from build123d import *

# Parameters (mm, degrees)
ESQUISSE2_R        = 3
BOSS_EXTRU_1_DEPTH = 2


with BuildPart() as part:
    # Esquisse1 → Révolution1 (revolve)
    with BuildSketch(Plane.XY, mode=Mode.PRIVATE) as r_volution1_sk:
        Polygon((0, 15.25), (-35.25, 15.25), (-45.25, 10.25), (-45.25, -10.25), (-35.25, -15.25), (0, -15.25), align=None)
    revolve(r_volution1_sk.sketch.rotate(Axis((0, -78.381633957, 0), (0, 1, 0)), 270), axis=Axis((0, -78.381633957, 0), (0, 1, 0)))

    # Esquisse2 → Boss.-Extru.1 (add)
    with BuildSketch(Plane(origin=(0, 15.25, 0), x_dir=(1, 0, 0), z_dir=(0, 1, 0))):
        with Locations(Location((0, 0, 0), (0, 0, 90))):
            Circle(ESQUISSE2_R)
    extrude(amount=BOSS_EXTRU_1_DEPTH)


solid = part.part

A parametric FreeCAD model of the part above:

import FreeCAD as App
import Part
import Sketcher

V = App.Vector


def add_polygon(sketch, points):
    """Adds a closed chain of lines whose ends are joined by coincident constraints."""
    first, n = sketch.GeometryCount, len(points)
    for a, b in zip(points, points[1:] + points[:1]):
        sketch.addGeometry(Part.LineSegment(App.Vector(*a, 0), App.Vector(*b, 0)), False)
    for i in range(n):
        sketch.addConstraint(Sketcher.Constraint("Coincident", first + i, 2, first + (i + 1) % n, 1))

doc = App.newDocument("Part")
body = doc.addObject("PartDesign::Body", "Body")

# Sketch on XY plane
sketch1 = doc.addObject("Sketcher::SketchObject", "Sketch")
body.addObject(sketch1)
sketch1.AttachmentSupport = (doc.XY_Plane, [""])
sketch1.MapMode = "FlatFace"
add_polygon(sketch1, [(0, 15), (-35, 15), (-45, 10), (-45, -10), (-35, -15), (0, -15)])  # lines 0-5
sketch1.addConstraint([
    Sketcher.Constraint("Horizontal", 0),
    Sketcher.Constraint("Vertical", 2),
    Sketcher.Constraint("Horizontal", 4),
    Sketcher.Constraint("Vertical", 5),
    Sketcher.Constraint("Symmetric", 4, 2, 5, 2, -1, 1),
    Sketcher.Constraint("Vertical", 0, 2, 3, 2),
    Sketcher.Constraint("Equal", 1, 3),
    Sketcher.Constraint("DistanceY", 2, 2, 2, 1, 20.5),
    Sketcher.Constraint("DistanceY", 5, 1, 5, 2, 30.5),
    Sketcher.Constraint("DistanceX", 1, 2, 0, 2, 10.0),
    Sketcher.Constraint("DistanceX", 0, 2, 0, 1, 35.25),
])
revolution = doc.addObject("PartDesign::Revolution", "Revolution")
body.addObject(revolution)
revolution.Profile = sketch1
revolution.ReferenceAxis = (sketch1, ["V_Axis"])
revolution.Angle = 360

# Sketch on XZ plane
sketch2 = doc.addObject("Sketcher::SketchObject", "Sketch001")
body.addObject(sketch2)
sketch2.AttachmentSupport = (doc.XZ_Plane, [""])
sketch2.MapMode = "FlatFace"
sketch2.AttachmentOffset = App.Placement(V(0, 0, -15.25), App.Rotation())
sketch2.addGeometry(Part.Circle(V(0, 0, 0), V(0, 0, 1), 3), False)
sketch2.addConstraint([
    Sketcher.Constraint("Coincident", 0, 3, -1, 1),
    Sketcher.Constraint("Diameter", 0, 6.0),
])
pad1 = doc.addObject("PartDesign::Pad", "Pad")
body.addObject(pad1)
pad1.Profile = sketch2
pad1.Length = 2
pad1.Reversed = True

doc.recompute()
